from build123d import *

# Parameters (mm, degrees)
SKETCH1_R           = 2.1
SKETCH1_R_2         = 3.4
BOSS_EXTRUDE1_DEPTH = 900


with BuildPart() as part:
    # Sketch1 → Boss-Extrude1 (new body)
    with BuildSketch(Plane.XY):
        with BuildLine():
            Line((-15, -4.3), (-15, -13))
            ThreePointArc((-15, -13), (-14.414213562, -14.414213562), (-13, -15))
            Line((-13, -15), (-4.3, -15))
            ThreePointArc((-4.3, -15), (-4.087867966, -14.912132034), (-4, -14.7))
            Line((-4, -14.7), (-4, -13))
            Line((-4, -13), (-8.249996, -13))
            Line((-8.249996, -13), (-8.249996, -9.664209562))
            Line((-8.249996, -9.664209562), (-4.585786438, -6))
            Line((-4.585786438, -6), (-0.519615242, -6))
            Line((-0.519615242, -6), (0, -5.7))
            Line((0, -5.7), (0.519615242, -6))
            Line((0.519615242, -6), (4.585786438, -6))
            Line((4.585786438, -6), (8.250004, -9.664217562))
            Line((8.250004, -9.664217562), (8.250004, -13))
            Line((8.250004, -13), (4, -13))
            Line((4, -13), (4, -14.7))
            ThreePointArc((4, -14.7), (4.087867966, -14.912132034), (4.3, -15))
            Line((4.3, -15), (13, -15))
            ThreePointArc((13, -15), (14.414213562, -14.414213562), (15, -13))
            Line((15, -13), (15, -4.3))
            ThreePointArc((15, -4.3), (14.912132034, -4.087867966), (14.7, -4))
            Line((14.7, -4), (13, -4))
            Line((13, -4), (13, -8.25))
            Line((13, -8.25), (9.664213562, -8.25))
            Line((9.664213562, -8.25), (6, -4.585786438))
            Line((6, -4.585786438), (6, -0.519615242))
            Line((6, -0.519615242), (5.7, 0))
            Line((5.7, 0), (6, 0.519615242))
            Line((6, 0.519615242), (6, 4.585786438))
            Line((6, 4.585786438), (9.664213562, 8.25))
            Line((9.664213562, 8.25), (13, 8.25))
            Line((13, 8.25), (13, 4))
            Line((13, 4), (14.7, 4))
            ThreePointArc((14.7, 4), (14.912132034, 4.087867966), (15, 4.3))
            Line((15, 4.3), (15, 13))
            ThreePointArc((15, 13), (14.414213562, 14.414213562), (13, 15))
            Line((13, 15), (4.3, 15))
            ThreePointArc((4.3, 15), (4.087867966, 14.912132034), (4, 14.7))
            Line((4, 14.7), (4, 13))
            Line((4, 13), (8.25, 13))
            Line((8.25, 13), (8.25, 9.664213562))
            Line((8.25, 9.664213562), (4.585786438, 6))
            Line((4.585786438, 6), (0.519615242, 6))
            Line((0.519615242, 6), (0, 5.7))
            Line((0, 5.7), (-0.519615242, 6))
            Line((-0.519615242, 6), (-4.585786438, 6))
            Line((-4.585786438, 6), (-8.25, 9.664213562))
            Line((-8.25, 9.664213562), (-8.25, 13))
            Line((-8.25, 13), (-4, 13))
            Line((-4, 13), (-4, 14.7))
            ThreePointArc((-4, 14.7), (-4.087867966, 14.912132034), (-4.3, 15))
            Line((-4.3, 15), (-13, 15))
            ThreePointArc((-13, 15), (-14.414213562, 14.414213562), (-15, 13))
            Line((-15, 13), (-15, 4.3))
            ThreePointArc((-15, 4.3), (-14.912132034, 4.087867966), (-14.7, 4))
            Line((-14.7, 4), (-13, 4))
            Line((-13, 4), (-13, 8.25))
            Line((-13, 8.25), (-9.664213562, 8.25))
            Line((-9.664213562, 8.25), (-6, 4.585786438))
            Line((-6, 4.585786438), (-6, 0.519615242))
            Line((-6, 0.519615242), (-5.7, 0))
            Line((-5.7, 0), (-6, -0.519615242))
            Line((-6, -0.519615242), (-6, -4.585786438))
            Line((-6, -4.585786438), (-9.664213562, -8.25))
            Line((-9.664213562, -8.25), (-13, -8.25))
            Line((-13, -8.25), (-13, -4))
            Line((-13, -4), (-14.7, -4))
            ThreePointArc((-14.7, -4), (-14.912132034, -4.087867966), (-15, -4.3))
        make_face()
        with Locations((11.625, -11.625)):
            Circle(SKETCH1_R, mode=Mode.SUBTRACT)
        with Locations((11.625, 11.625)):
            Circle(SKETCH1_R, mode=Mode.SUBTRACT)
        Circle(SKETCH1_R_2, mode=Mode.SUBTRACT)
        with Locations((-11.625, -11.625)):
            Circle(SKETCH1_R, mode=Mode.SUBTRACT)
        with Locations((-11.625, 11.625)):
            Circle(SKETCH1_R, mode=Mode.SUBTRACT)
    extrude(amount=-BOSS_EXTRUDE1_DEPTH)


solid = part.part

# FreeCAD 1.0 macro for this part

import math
import FreeCAD as App
import Part
import Sketcher

V = App.Vector
Q = App.Units.Quantity

doc = App.newDocument("Part")
body = doc.addObject("PartDesign::Body", "Body")

sketch1 = body.newObject("Sketcher::SketchObject", "Sketch")
sketch1.AttachmentSupport = (doc.getObject("XY_Plane"), [""])
sketch1.MapMode = "FlatFace"
sketch1.addGeometry(Part.LineSegment(V(-15, -4.3, 0), V(-15, -13, 0)), False)
sketch1.addGeometry(Part.ArcOfCircle(Part.Circle(V(-13, -13, 0), V(0, 0, 1), 2), math.radians(-180), math.radians(-90)), False)
sketch1.addGeometry(Part.LineSegment(V(-13, -15, 0), V(-4.3, -15, 0)), False)
sketch1.addGeometry(Part.ArcOfCircle(Part.Circle(V(-4.3, -14.7, 0), V(0, 0, 1), 0.3), math.radians(-90), math.radians(0)), False)
sketch1.addGeometry(Part.LineSegment(V(-4, -14.7, 0), V(-4, -13, 0)), False)
sketch1.addGeometry(Part.LineSegment(V(-4, -13, 0), V(-8.25, -13, 0)), False)
sketch1.addGeometry(Part.LineSegment(V(-8.25, -13, 0), V(-8.25, -9.66, 0)), False)
sketch1.addGeometry(Part.LineSegment(V(-8.25, -9.66, 0), V(-4.59, -6, 0)), False)
sketch1.addGeometry(Part.LineSegment(V(-4.59, -6, 0), V(-0.52, -6, 0)), False)
sketch1.addGeometry(Part.LineSegment(V(-0.52, -6, 0), V(0, -5.7, 0)), False)
sketch1.addGeometry(Part.LineSegment(V(0, -5.7, 0), V(0.52, -6, 0)), False)
sketch1.addGeometry(Part.LineSegment(V(0.52, -6, 0), V(4.59, -6, 0)), False)
sketch1.addGeometry(Part.LineSegment(V(4.59, -6, 0), V(8.25, -9.66, 0)), False)
sketch1.addGeometry(Part.LineSegment(V(8.25, -9.66, 0), V(8.25, -13, 0)), False)
sketch1.addGeometry(Part.LineSegment(V(8.25, -13, 0), V(4, -13, 0)), False)
sketch1.addGeometry(Part.LineSegment(V(4, -13, 0), V(4, -14.7, 0)), False)
sketch1.addGeometry(Part.ArcOfCircle(Part.Circle(V(4.3, -14.7, 0), V(0, 0, 1), 0.3), math.radians(-180), math.radians(-90)), False)
sketch1.addGeometry(Part.LineSegment(V(4.3, -15, 0), V(13, -15, 0)), False)
sketch1.addGeometry(Part.ArcOfCircle(Part.Circle(V(13, -13, 0), V(0, 0, 1), 2), math.radians(-90), math.radians(0)), False)
sketch1.addGeometry(Part.LineSegment(V(15, -13, 0), V(15, -4.3, 0)), False)
sketch1.addGeometry(Part.ArcOfCircle(Part.Circle(V(14.7, -4.3, 0), V(0, 0, 1), 0.3), math.radians(0), math.radians(90)), False)
sketch1.addGeometry(Part.LineSegment(V(14.7, -4, 0), V(13, -4, 0)), False)
sketch1.addGeometry(Part.LineSegment(V(13, -4, 0), V(13, -8.25, 0)), False)
sketch1.addGeometry(Part.LineSegment(V(13, -8.25, 0), V(9.66, -8.25, 0)), False)
sketch1.addGeometry(Part.LineSegment(V(9.66, -8.25, 0), V(6, -4.59, 0)), False)
sketch1.addGeometry(Part.LineSegment(V(6, -4.59, 0), V(6, -0.52, 0)), False)
sketch1.addGeometry(Part.LineSegment(V(6, -0.52, 0), V(5.7, 0, 0)), False)
sketch1.addGeometry(Part.LineSegment(V(5.7, 0, 0), V(6, 0.52, 0)), False)
sketch1.addGeometry(Part.LineSegment(V(6, 0.52, 0), V(6, 4.59, 0)), False)
sketch1.addGeometry(Part.LineSegment(V(6, 4.59, 0), V(9.66, 8.25, 0)), False)
sketch1.addGeometry(Part.LineSegment(V(9.66, 8.25, 0), V(13, 8.25, 0)), False)
sketch1.addGeometry(Part.LineSegment(V(13, 8.25, 0), V(13, 4, 0)), False)
sketch1.addGeometry(Part.LineSegment(V(13, 4, 0), V(14.7, 4, 0)), False)
sketch1.addGeometry(Part.ArcOfCircle(Part.Circle(V(14.7, 4.3, 0), V(0, 0, 1), 0.3), math.radians(-90), math.radians(0)), False)
sketch1.addGeometry(Part.LineSegment(V(15, 4.3, 0), V(15, 13, 0)), False)
sketch1.addGeometry(Part.ArcOfCircle(Part.Circle(V(13, 13, 0), V(0, 0, 1), 2), math.radians(0), math.radians(90)), False)
sketch1.addGeometry(Part.LineSegment(V(13, 15, 0), V(4.3, 15, 0)), False)
sketch1.addGeometry(Part.ArcOfCircle(Part.Circle(V(4.3, 14.7, 0), V(0, 0, 1), 0.3), math.radians(90), math.radians(180)), False)
sketch1.addGeometry(Part.LineSegment(V(4, 14.7, 0), V(4, 13, 0)), False)
sketch1.addGeometry(Part.LineSegment(V(4, 13, 0), V(8.25, 13, 0)), False)
sketch1.addGeometry(Part.LineSegment(V(8.25, 13, 0), V(8.25, 9.66, 0)), False)
sketch1.addGeometry(Part.LineSegment(V(8.25, 9.66, 0), V(4.59, 6, 0)), False)
sketch1.addGeometry(Part.LineSegment(V(4.59, 6, 0), V(0.52, 6, 0)), False)
sketch1.addGeometry(Part.LineSegment(V(0.52, 6, 0), V(0, 5.7, 0)), False)
sketch1.addGeometry(Part.LineSegment(V(0, 5.7, 0), V(-0.52, 6, 0)), False)
sketch1.addGeometry(Part.LineSegment(V(-0.52, 6, 0), V(-4.59, 6, 0)), False)
sketch1.addGeometry(Part.LineSegment(V(-4.59, 6, 0), V(-8.25, 9.66, 0)), False)
sketch1.addGeometry(Part.LineSegment(V(-8.25, 9.66, 0), V(-8.25, 13, 0)), False)
sketch1.addGeometry(Part.LineSegment(V(-8.25, 13, 0), V(-4, 13, 0)), False)
sketch1.addGeometry(Part.LineSegment(V(-4, 13, 0), V(-4, 14.7, 0)), False)
sketch1.addGeometry(Part.ArcOfCircle(Part.Circle(V(-4.3, 14.7, 0), V(0, 0, 1), 0.3), math.radians(0), math.radians(90)), False)
sketch1.addGeometry(Part.LineSegment(V(-4.3, 15, 0), V(-13, 15, 0)), False)
sketch1.addGeometry(Part.ArcOfCircle(Part.Circle(V(-13, 13, 0), V(0, 0, 1), 2), math.radians(90), math.radians(180)), False)
sketch1.addGeometry(Part.LineSegment(V(-15, 13, 0), V(-15, 4.3, 0)), False)
sketch1.addGeometry(Part.ArcOfCircle(Part.Circle(V(-14.7, 4.3, 0), V(0, 0, 1), 0.3), math.radians(-180), math.radians(-90)), False)
sketch1.addGeometry(Part.LineSegment(V(-14.7, 4, 0), V(-13, 4, 0)), False)
sketch1.addGeometry(Part.LineSegment(V(-13, 4, 0), V(-13, 8.25, 0)), False)
sketch1.addGeometry(Part.LineSegment(V(-13, 8.25, 0), V(-9.66, 8.25, 0)), False)
sketch1.addGeometry(Part.LineSegment(V(-9.66, 8.25, 0), V(-6, 4.59, 0)), False)
sketch1.addGeometry(Part.LineSegment(V(-6, 4.59, 0), V(-6, 0.52, 0)), False)
sketch1.addGeometry(Part.LineSegment(V(-6, 0.52, 0), V(-5.7, 0, 0)), False)
sketch1.addGeometry(Part.LineSegment(V(-5.7, 0, 0), V(-6, -0.52, 0)), False)
sketch1.addGeometry(Part.LineSegment(V(-6, -0.52, 0), V(-6, -4.59, 0)), False)
sketch1.addGeometry(Part.LineSegment(V(-6, -4.59, 0), V(-9.66, -8.25, 0)), False)
sketch1.addGeometry(Part.LineSegment(V(-9.66, -8.25, 0), V(-13, -8.25, 0)), False)
sketch1.addGeometry(Part.LineSegment(V(-13, -8.25, 0), V(-13, -4, 0)), False)
sketch1.addGeometry(Part.LineSegment(V(-13, -4, 0), V(-14.7, -4, 0)), False)
sketch1.addGeometry(Part.ArcOfCircle(Part.Circle(V(-14.7, -4.3, 0), V(0, 0, 1), 0.3), math.radians(90), math.radians(180)), False)
sketch1.addGeometry(Part.Circle(V(-11.62, -11.62, 0), V(0, 0, 1), 2.1), False)
sketch1.addGeometry(Part.Circle(V(11.62, -11.62, 0), V(0, 0, 1), 2.1), False)
sketch1.addGeometry(Part.Circle(V(-11.62, 11.62, 0), V(0, 0, 1), 2.1), False)
sketch1.addGeometry(Part.Circle(V(0, 0, 0), V(0, 0, 1), 3.4), False)
sketch1.addGeometry(Part.Circle(V(11.62, 11.62, 0), V(0, 0, 1), 2.1), False)
sketch1.addConstraint(Sketcher.Constraint("Tangent", 0, 2, 1, 1))
sketch1.addConstraint(Sketcher.Constraint("Tangent", 1, 2, 2, 1))
sketch1.addConstraint(Sketcher.Constraint("Tangent", 2, 2, 3, 1))
sketch1.addConstraint(Sketcher.Constraint("Tangent", 3, 2, 4, 1))
sketch1.addConstraint(Sketcher.Constraint("Coincident", 4, 2, 5, 1))
sketch1.addConstraint(Sketcher.Constraint("Coincident", 5, 2, 6, 1))
sketch1.addConstraint(Sketcher.Constraint("Coincident", 6, 2, 7, 1))
sketch1.addConstraint(Sketcher.Constraint("Coincident", 7, 2, 8, 1))
sketch1.addConstraint(Sketcher.Constraint("Coincident", 8, 2, 9, 1))
sketch1.addConstraint(Sketcher.Constraint("Coincident", 9, 2, 10, 1))
sketch1.addConstraint(Sketcher.Constraint("Coincident", 10, 2, 11, 1))
sketch1.addConstraint(Sketcher.Constraint("Coincident", 11, 2, 12, 1))
sketch1.addConstraint(Sketcher.Constraint("Coincident", 12, 2, 13, 1))
sketch1.addConstraint(Sketcher.Constraint("Coincident", 13, 2, 14, 1))
sketch1.addConstraint(Sketcher.Constraint("Coincident", 14, 2, 15, 1))
sketch1.addConstraint(Sketcher.Constraint("Tangent", 15, 2, 16, 1))
sketch1.addConstraint(Sketcher.Constraint("Tangent", 16, 2, 17, 1))
sketch1.addConstraint(Sketcher.Constraint("Tangent", 17, 2, 18, 1))
sketch1.addConstraint(Sketcher.Constraint("Tangent", 18, 2, 19, 1))
sketch1.addConstraint(Sketcher.Constraint("Tangent", 19, 2, 20, 1))
sketch1.addConstraint(Sketcher.Constraint("Tangent", 20, 2, 21, 1))
sketch1.addConstraint(Sketcher.Constraint("Coincident", 21, 2, 22, 1))
sketch1.addConstraint(Sketcher.Constraint("Coincident", 22, 2, 23, 1))
sketch1.addConstraint(Sketcher.Constraint("Coincident", 23, 2, 24, 1))
sketch1.addConstraint(Sketcher.Constraint("Coincident", 24, 2, 25, 1))
sketch1.addConstraint(Sketcher.Constraint("Coincident", 25, 2, 26, 1))
sketch1.addConstraint(Sketcher.Constraint("Coincident", 26, 2, 27, 1))
sketch1.addConstraint(Sketcher.Constraint("Coincident", 27, 2, 28, 1))
sketch1.addConstraint(Sketcher.Constraint("Coincident", 28, 2, 29, 1))
sketch1.addConstraint(Sketcher.Constraint("Coincident", 29, 2, 30, 1))
sketch1.addConstraint(Sketcher.Constraint("Coincident", 30, 2, 31, 1))
sketch1.addConstraint(Sketcher.Constraint("Coincident", 31, 2, 32, 1))
sketch1.addConstraint(Sketcher.Constraint("Tangent", 32, 2, 33, 1))
sketch1.addConstraint(Sketcher.Constraint("Tangent", 33, 2, 34, 1))
sketch1.addConstraint(Sketcher.Constraint("Tangent", 34, 2, 35, 1))
sketch1.addConstraint(Sketcher.Constraint("Tangent", 35, 2, 36, 1))
sketch1.addConstraint(Sketcher.Constraint("Tangent", 36, 2, 37, 1))
sketch1.addConstraint(Sketcher.Constraint("Tangent", 37, 2, 38, 1))
sketch1.addConstraint(Sketcher.Constraint("Coincident", 38, 2, 39, 1))
sketch1.addConstraint(Sketcher.Constraint("Coincident", 39, 2, 40, 1))
sketch1.addConstraint(Sketcher.Constraint("Coincident", 40, 2, 41, 1))
sketch1.addConstraint(Sketcher.Constraint("Coincident", 41, 2, 42, 1))
sketch1.addConstraint(Sketcher.Constraint("Coincident", 42, 2, 43, 1))
sketch1.addConstraint(Sketcher.Constraint("Coincident", 43, 2, 44, 1))
sketch1.addConstraint(Sketcher.Constraint("Coincident", 44, 2, 45, 1))
sketch1.addConstraint(Sketcher.Constraint("Coincident", 45, 2, 46, 1))
sketch1.addConstraint(Sketcher.Constraint("Coincident", 46, 2, 47, 1))
sketch1.addConstraint(Sketcher.Constraint("Coincident", 47, 2, 48, 1))
sketch1.addConstraint(Sketcher.Constraint("Coincident", 48, 2, 49, 1))
sketch1.addConstraint(Sketcher.Constraint("Tangent", 49, 2, 50, 1))
sketch1.addConstraint(Sketcher.Constraint("Tangent", 50, 2, 51, 1))
sketch1.addConstraint(Sketcher.Constraint("Tangent", 51, 2, 52, 1))
sketch1.addConstraint(Sketcher.Constraint("Tangent", 52, 2, 53, 1))
sketch1.addConstraint(Sketcher.Constraint("Tangent", 53, 2, 54, 1))
sketch1.addConstraint(Sketcher.Constraint("Tangent", 54, 2, 55, 1))
sketch1.addConstraint(Sketcher.Constraint("Coincident", 55, 2, 56, 1))
sketch1.addConstraint(Sketcher.Constraint("Coincident", 56, 2, 57, 1))
sketch1.addConstraint(Sketcher.Constraint("Coincident", 57, 2, 58, 1))
sketch1.addConstraint(Sketcher.Constraint("Coincident", 58, 2, 59, 1))
sketch1.addConstraint(Sketcher.Constraint("Coincident", 59, 2, 60, 1))
sketch1.addConstraint(Sketcher.Constraint("Coincident", 60, 2, 61, 1))
sketch1.addConstraint(Sketcher.Constraint("Coincident", 61, 2, 62, 1))
sketch1.addConstraint(Sketcher.Constraint("Coincident", 62, 2, 63, 1))
sketch1.addConstraint(Sketcher.Constraint("Coincident", 63, 2, 64, 1))
sketch1.addConstraint(Sketcher.Constraint("Coincident", 64, 2, 65, 1))
sketch1.addConstraint(Sketcher.Constraint("Coincident", 65, 2, 66, 1))
sketch1.addConstraint(Sketcher.Constraint("Tangent", 66, 2, 67, 1))
sketch1.addConstraint(Sketcher.Constraint("Tangent", 67, 2, 0, 1))
sketch1.addConstraint(Sketcher.Constraint("Vertical", 0))
sketch1.addConstraint(Sketcher.Constraint("Horizontal", 2))
sketch1.addConstraint(Sketcher.Constraint("Vertical", 4))
sketch1.addConstraint(Sketcher.Constraint("Horizontal", 5))
sketch1.addConstraint(Sketcher.Constraint("Vertical", 6))
sketch1.addConstraint(Sketcher.Constraint("Horizontal", 8))
sketch1.addConstraint(Sketcher.Constraint("Horizontal", 11))
sketch1.addConstraint(Sketcher.Constraint("Vertical", 13))
sketch1.addConstraint(Sketcher.Constraint("Horizontal", 14))
sketch1.addConstraint(Sketcher.Constraint("Vertical", 15))
sketch1.addConstraint(Sketcher.Constraint("Horizontal", 17))
sketch1.addConstraint(Sketcher.Constraint("Vertical", 19))
sketch1.addConstraint(Sketcher.Constraint("Horizontal", 21))
sketch1.addConstraint(Sketcher.Constraint("Vertical", 22))
sketch1.addConstraint(Sketcher.Constraint("Horizontal", 23))
sketch1.addConstraint(Sketcher.Constraint("Vertical", 25))
sketch1.addConstraint(Sketcher.Constraint("Vertical", 28))
sketch1.addConstraint(Sketcher.Constraint("Horizontal", 30))
sketch1.addConstraint(Sketcher.Constraint("Vertical", 31))
sketch1.addConstraint(Sketcher.Constraint("Horizontal", 32))
sketch1.addConstraint(Sketcher.Constraint("Vertical", 34))
sketch1.addConstraint(Sketcher.Constraint("Horizontal", 36))
sketch1.addConstraint(Sketcher.Constraint("Vertical", 38))
sketch1.addConstraint(Sketcher.Constraint("Horizontal", 39))
sketch1.addConstraint(Sketcher.Constraint("Vertical", 40))
sketch1.addConstraint(Sketcher.Constraint("Horizontal", 42))
sketch1.addConstraint(Sketcher.Constraint("Horizontal", 45))
sketch1.addConstraint(Sketcher.Constraint("Vertical", 47))
sketch1.addConstraint(Sketcher.Constraint("Horizontal", 48))
sketch1.addConstraint(Sketcher.Constraint("Vertical", 49))
sketch1.addConstraint(Sketcher.Constraint("Horizontal", 51))
sketch1.addConstraint(Sketcher.Constraint("Vertical", 53))
sketch1.addConstraint(Sketcher.Constraint("Horizontal", 55))
sketch1.addConstraint(Sketcher.Constraint("Vertical", 56))
sketch1.addConstraint(Sketcher.Constraint("Horizontal", 57))
sketch1.addConstraint(Sketcher.Constraint("Vertical", 59))
sketch1.addConstraint(Sketcher.Constraint("Vertical", 62))
sketch1.addConstraint(Sketcher.Constraint("Horizontal", 64))
sketch1.addConstraint(Sketcher.Constraint("Vertical", 65))
sketch1.addConstraint(Sketcher.Constraint("Horizontal", 66))
sketch1.addConstraint(Sketcher.Constraint("Coincident", 71, 3, -1, 1))
sketch1.addConstraint(Sketcher.Constraint("Equal", 3, 16))
sketch1.addConstraint(Sketcher.Constraint("Equal", 1, 18))
sketch1.addConstraint(Sketcher.Constraint("Equal", 16, 20))
sketch1.addConstraint(Sketcher.Constraint("Equal", 20, 33))
sketch1.addConstraint(Sketcher.Constraint("Equal", 18, 35))
sketch1.addConstraint(Sketcher.Constraint("Equal", 33, 37))
sketch1.addConstraint(Sketcher.Constraint("Equal", 37, 50))
sketch1.addConstraint(Sketcher.Constraint("Equal", 35, 52))
sketch1.addConstraint(Sketcher.Constraint("Equal", 50, 54))
sketch1.addConstraint(Sketcher.Constraint("Equal", 54, 67))
sketch1.addConstraint(Sketcher.Constraint("Equal", 68, 69))
sketch1.addConstraint(Sketcher.Constraint("Equal", 69, 70))
sketch1.addConstraint(Sketcher.Constraint("Equal", 70, 72))
sketch1.addConstraint(Sketcher.Constraint("Symmetric", 1, 3, 35, 3, -1, 1))
sketch1.addConstraint(Sketcher.Constraint("Symmetric", 16, 3, 50, 3, -1, 1))
sketch1.addConstraint(Sketcher.Constraint("Symmetric", 20, 3, 54, 3, -1, 1))
sketch1.addConstraint(Sketcher.Constraint("Symmetric", 69, 3, 70, 3, -1, 1))
sketch1.addConstraint(Sketcher.Constraint("Symmetric", 68, 3, 72, 3, -1, 1))
sketch1.addConstraint(Sketcher.Constraint("Symmetric", 4, 2, 38, 2, -1, 1))
sketch1.addConstraint(Sketcher.Constraint("Symmetric", 6, 2, 40, 2, -1, 1))
sketch1.addConstraint(Sketcher.Constraint("Symmetric", 7, 2, 41, 2, -1, 1))
sketch1.addConstraint(Sketcher.Constraint("Symmetric", 9, 2, 43, 2, -1, 1))
sketch1.addConstraint(Sketcher.Constraint("Symmetric", 10, 2, 44, 2, -1, 1))
sketch1.addConstraint(Sketcher.Constraint("Symmetric", 12, 2, 46, 2, -1, 1))
sketch1.addConstraint(Sketcher.Constraint("Symmetric", 22, 2, 56, 2, -1, 1))
sketch1.addConstraint(Sketcher.Constraint("Symmetric", 24, 2, 58, 2, -1, 1))
sketch1.addConstraint(Sketcher.Constraint("Symmetric", 26, 2, 60, 2, -1, 1))
sketch1.addConstraint(Sketcher.Constraint("Symmetric", 27, 2, 61, 2, -1, 1))
sketch1.addConstraint(Sketcher.Constraint("Symmetric", 29, 2, 63, 2, -1, 1))
sketch1.addConstraint(Sketcher.Constraint("Symmetric", 31, 2, 65, 2, -1, 1))
sketch1.addConstraint(Sketcher.Constraint("Symmetric", 3, 3, 16, 3, -2))
sketch1.addConstraint(Sketcher.Constraint("Symmetric", 33, 3, 54, 3, -2))
sketch1.addConstraint(Sketcher.Constraint("Symmetric", 68, 3, 69, 3, -2))
sketch1.addConstraint(Sketcher.Constraint("Symmetric", 8, 2, 10, 2, -2))
sketch1.addConstraint(Sketcher.Constraint("Symmetric", 5, 2, 13, 2, -2))
sketch1.addConstraint(Sketcher.Constraint("Symmetric", 30, 2, 56, 2, -2))
sketch1.addConstraint(Sketcher.Constraint("Symmetric", 28, 2, 58, 2, -2))
sketch1.addConstraint(Sketcher.Constraint("PointOnObject", 9, 2, -2))
sketch1.addConstraint(Sketcher.Constraint("PointOnObject", 26, 2, -1))
sketch1.addConstraint(Sketcher.Constraint("Perpendicular", 7, 12))
sketch1.addConstraint(Sketcher.Constraint("Parallel", 12, 24))
sketch1.addConstraint(Sketcher.Constraint("Perpendicular", 9, 26))
sketch1.addConstraint(Sketcher.Constraint("Perpendicular", 10, 27))
sketch1.addConstraint(Sketcher.Constraint("Perpendicular", 24, 29))
sketch1.addConstraint(Sketcher.Constraint("Perpendicular", 26, 43))
sketch1.addConstraint(Sketcher.Constraint("Perpendicular", 41, 46))
sketch1.addConstraint(Sketcher.Constraint("Parallel", 46, 58))
sketch1.addConstraint(Sketcher.Constraint("Perpendicular", 43, 60))
sketch1.addConstraint(Sketcher.Constraint("Perpendicular", 58, 63))
sketch1.addConstraint(Sketcher.Constraint("Horizontal", 0, 2, 4, 2))
sketch1.addConstraint(Sketcher.Constraint("Horizontal", 40, 2, 46, 2))
sketch1.addConstraint(Sketcher.Constraint("Horizontal", 39, 2, 47, 2))
sketch1.addConstraint(Sketcher.Constraint("Vertical", 17, 2, 21, 2))
sketch1.addConstraint(Sketcher.Constraint("Vertical", 23, 2, 29, 2))
sketch1.addConstraint(Sketcher.Constraint("Equal", 51, 0))
sketch1.addConstraint(Sketcher.Constraint("Equal", 48, 22))
sketch1.addConstraint(Sketcher.Constraint("Equal", 45, 25))
sketch1.addConstraint(Sketcher.Constraint("Equal", 64, 40))
sketch1.addConstraint(Sketcher.Constraint("Equal", 10, 26))
sketch1.addConstraint(Sketcher.Constraint("Equal", 29, 41))
sketch1.addConstraint(Sketcher.Constraint("Radius", 1, Q("2 mm")))
sketch1.addConstraint(Sketcher.Constraint("Diameter", 68, Q("4.2 mm")))
sketch1.addConstraint(Sketcher.Constraint("Diameter", 71, Q("6.8 mm")))
sketch1.addConstraint(Sketcher.Constraint("Radius", 3, Q("0.3 mm")))
sketch1.addConstraint(Sketcher.Constraint("Angle", 9, Q("30 deg")))
sketch1.addConstraint(Sketcher.Constraint("DistanceX", 2, 1, 2, 2, Q("8.7 mm")))
sketch1.addConstraint(Sketcher.Constraint("DistanceX", 1, 3, -1, 1, Q("13 mm")))
sketch1.addConstraint(Sketcher.Constraint("DistanceY", 7, 2, -1, 1, Q("6 mm")))
sketch1.addConstraint(Sketcher.Constraint("Distance", 9, Q("0.6 mm")))
sketch1.addConstraint(Sketcher.Constraint("DistanceX", 39, 1, 39, 2, Q("4.25 mm")))
sketch1.addConstraint(Sketcher.Constraint("DistanceX", 68, 3, -1, 1, Q("11.625 mm")))
sketch1.addConstraint(Sketcher.Constraint("DistanceY", 68, 3, -1, 1, Q("11.625 mm")))
sketch1.addConstraint(Sketcher.Constraint("DistanceX", 8, 1, 8, 2, Q("4.066171 mm")))
pad1 = body.newObject("PartDesign::Pad", "Pad")
pad1.Profile = sketch1
pad1.Length = 900
pad1.Reversed = True

doc.recompute()
